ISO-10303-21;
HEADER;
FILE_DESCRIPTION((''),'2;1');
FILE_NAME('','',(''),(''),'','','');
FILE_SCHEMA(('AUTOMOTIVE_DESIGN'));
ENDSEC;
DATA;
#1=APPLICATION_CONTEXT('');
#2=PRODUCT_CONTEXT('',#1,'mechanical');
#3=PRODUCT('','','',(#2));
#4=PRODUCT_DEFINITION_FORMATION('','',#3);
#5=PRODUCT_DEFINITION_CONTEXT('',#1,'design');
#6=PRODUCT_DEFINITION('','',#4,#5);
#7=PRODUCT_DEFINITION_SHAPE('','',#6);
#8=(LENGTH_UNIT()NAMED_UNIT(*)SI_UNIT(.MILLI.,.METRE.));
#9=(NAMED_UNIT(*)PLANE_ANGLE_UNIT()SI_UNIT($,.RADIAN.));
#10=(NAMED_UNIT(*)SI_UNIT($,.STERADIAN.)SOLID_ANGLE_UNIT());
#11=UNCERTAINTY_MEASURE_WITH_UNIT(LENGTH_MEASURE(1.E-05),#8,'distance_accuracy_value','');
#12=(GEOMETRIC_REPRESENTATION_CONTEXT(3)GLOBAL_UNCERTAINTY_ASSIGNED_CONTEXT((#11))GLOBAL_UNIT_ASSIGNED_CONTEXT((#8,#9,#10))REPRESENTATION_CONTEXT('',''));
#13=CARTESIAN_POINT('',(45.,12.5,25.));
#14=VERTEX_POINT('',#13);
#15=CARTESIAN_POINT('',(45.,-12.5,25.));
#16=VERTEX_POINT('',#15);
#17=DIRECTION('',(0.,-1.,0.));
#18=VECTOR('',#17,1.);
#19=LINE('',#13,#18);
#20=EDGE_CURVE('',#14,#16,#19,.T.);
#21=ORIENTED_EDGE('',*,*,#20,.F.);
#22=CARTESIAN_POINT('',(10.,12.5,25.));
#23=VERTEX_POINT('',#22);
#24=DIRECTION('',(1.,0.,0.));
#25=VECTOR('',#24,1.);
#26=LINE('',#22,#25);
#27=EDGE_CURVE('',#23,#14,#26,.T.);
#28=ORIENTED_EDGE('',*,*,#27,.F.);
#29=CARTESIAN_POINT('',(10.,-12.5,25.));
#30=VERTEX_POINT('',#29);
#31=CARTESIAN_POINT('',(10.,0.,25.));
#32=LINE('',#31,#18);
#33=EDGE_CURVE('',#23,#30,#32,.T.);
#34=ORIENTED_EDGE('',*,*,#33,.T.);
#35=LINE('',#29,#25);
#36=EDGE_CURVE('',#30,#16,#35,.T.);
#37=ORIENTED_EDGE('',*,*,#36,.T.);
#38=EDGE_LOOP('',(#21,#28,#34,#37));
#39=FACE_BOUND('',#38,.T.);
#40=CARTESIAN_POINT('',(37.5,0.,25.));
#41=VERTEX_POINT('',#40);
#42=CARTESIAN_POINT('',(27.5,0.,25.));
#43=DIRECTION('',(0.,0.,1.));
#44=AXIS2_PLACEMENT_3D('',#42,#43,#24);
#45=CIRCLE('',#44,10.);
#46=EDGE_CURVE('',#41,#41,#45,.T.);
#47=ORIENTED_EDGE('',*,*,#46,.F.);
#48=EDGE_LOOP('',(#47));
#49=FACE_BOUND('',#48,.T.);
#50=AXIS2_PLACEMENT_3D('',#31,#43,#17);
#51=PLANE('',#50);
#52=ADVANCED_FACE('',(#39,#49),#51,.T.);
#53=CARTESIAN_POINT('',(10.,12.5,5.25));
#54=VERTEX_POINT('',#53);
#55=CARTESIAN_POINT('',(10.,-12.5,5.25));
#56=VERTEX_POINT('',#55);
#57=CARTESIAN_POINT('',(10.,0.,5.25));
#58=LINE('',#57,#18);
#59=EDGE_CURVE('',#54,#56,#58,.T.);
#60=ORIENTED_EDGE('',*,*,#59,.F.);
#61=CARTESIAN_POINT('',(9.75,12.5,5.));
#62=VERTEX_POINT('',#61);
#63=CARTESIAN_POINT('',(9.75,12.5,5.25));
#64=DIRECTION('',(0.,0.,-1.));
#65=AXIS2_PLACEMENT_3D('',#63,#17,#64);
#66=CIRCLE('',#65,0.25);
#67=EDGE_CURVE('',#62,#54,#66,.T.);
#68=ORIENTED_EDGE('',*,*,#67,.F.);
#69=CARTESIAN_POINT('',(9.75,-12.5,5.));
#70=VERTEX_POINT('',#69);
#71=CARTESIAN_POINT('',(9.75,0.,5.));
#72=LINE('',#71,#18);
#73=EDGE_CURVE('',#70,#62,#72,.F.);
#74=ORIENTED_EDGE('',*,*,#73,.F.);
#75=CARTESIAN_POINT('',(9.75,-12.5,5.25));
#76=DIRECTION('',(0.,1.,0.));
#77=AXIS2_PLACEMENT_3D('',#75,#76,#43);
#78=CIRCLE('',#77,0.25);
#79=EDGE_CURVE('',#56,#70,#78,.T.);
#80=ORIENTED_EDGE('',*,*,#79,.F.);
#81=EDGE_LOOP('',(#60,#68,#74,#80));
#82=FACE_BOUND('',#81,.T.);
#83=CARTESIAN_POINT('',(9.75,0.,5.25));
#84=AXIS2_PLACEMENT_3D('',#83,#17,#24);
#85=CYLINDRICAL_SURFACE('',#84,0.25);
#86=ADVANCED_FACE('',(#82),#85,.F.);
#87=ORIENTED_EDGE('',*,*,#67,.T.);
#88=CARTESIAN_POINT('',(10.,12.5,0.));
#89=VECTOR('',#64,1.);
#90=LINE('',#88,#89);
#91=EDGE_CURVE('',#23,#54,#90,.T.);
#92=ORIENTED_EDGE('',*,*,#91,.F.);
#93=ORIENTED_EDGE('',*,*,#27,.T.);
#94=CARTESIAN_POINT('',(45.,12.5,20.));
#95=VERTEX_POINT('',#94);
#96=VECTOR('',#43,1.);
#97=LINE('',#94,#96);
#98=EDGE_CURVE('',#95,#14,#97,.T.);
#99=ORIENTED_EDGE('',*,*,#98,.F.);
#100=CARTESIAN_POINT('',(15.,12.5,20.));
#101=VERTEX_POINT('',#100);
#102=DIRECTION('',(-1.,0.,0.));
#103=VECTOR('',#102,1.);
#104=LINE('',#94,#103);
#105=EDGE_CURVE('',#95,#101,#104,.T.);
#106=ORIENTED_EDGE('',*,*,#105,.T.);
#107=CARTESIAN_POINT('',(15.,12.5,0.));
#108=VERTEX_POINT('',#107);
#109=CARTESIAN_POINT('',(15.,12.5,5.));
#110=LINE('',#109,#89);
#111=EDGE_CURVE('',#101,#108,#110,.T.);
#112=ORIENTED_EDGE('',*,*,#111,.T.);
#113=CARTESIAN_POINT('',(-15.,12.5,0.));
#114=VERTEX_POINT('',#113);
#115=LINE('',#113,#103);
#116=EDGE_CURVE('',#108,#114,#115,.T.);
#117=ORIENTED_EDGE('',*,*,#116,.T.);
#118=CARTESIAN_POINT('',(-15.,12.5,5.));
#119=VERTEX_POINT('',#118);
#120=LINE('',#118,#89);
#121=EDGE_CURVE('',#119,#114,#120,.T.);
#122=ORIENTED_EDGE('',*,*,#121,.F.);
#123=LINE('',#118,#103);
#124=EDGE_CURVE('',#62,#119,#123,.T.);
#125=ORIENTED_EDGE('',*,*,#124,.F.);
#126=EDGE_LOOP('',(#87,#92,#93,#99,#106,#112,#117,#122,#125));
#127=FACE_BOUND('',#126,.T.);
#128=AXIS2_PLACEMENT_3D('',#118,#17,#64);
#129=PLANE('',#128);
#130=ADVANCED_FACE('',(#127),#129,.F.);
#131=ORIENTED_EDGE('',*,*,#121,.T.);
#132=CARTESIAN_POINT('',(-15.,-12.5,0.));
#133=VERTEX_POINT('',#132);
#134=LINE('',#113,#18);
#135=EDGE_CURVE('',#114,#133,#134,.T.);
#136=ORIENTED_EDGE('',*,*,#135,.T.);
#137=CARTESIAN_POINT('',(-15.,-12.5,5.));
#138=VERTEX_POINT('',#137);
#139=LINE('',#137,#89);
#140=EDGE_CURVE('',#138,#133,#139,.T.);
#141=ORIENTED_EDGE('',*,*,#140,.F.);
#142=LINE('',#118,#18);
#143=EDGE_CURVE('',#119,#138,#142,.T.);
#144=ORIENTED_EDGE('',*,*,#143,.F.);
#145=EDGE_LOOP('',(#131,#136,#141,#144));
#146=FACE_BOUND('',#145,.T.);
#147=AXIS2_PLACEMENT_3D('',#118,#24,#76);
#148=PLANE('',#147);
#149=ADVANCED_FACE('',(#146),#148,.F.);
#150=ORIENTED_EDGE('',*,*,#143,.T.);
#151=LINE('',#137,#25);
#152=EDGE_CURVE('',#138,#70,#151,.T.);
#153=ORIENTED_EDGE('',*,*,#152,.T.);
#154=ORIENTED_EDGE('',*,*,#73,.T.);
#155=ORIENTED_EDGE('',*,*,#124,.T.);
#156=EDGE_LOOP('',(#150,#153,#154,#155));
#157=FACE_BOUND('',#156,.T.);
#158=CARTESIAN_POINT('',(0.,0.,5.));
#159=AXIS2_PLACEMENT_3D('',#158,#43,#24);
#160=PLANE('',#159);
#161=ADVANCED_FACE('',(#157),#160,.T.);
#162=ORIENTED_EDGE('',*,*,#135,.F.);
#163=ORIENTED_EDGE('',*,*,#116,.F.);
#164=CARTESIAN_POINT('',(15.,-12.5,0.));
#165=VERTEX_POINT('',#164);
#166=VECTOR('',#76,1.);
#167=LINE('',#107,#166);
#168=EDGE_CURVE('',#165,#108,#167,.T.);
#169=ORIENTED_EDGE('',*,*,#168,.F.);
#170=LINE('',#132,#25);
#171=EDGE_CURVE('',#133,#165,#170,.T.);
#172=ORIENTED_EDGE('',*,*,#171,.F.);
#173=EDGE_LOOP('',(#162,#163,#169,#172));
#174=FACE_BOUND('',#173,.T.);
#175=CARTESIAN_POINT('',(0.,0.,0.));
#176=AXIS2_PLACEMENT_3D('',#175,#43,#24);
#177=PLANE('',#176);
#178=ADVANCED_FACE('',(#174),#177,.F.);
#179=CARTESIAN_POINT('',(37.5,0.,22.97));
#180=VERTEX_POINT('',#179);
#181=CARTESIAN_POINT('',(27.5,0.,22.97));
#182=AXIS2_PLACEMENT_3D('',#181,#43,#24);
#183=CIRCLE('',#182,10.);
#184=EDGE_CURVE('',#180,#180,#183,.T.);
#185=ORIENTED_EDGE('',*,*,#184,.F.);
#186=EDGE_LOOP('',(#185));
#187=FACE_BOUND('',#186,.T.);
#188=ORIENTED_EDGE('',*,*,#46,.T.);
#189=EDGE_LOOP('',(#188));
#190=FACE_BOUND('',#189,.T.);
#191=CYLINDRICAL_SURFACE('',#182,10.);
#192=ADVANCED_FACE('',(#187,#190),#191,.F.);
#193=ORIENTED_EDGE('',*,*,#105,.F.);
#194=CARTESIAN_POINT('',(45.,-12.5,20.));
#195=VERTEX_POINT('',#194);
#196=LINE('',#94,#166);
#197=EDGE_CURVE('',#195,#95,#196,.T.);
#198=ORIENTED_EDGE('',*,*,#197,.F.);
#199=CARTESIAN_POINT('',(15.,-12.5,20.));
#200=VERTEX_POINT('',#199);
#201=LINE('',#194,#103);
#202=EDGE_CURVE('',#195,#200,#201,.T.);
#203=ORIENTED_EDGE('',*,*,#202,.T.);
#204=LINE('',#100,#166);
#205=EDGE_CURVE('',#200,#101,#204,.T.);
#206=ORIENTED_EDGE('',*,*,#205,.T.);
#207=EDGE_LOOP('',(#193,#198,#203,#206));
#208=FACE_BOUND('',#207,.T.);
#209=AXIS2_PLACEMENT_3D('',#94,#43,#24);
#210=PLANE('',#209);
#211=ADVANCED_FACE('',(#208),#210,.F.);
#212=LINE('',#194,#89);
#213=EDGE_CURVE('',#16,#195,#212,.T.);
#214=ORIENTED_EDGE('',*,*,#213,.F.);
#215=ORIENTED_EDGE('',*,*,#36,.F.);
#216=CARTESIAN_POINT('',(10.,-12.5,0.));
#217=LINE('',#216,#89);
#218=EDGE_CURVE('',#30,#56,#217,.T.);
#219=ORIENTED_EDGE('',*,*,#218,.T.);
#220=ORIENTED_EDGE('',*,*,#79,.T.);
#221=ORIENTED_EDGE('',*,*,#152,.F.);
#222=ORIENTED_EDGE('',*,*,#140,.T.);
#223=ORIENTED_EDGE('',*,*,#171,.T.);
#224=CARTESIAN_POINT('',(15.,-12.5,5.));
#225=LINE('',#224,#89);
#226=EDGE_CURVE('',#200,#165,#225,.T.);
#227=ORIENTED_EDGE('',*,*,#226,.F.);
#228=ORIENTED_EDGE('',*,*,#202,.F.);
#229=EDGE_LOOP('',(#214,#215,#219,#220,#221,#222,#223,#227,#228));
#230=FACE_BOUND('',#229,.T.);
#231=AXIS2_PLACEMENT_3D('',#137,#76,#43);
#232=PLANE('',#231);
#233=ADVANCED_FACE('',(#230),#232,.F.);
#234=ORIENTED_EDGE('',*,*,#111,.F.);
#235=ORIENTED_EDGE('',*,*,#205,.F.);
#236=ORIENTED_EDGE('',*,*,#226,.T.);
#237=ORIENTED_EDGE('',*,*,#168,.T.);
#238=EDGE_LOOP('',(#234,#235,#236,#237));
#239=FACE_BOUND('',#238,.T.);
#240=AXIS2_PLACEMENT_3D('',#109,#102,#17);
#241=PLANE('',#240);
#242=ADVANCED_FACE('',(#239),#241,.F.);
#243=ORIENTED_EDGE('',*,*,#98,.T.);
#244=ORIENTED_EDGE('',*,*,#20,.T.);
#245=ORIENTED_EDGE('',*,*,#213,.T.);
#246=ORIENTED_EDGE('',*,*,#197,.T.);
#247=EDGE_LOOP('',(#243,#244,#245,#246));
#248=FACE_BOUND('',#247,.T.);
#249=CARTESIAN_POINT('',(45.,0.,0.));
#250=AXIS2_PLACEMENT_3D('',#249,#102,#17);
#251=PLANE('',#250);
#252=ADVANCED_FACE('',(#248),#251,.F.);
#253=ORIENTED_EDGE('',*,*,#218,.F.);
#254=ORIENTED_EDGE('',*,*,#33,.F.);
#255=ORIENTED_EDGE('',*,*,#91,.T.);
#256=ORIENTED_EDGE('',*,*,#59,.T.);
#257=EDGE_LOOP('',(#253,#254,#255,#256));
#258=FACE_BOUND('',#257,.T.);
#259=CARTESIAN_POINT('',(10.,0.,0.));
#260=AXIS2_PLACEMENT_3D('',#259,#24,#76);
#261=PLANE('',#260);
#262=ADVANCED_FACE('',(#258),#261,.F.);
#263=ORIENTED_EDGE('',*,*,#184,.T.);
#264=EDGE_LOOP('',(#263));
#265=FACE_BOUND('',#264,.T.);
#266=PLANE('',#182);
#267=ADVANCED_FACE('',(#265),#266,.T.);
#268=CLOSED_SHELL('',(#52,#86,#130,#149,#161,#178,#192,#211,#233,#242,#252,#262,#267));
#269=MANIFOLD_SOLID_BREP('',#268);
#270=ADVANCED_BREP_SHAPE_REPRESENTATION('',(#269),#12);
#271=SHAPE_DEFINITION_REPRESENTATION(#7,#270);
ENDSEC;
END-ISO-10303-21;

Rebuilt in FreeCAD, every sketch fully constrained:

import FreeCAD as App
import Part
import Sketcher
from FreeCAD import Vector
Q = App.Units.Quantity


def edges_at(feature, points):
    """Names of the edges that pass closest to the given points."""
    edges = feature.Shape.Edges
    near = lambda p: min(range(len(edges)), key=lambda i: edges[i].distToShape(Part.Vertex(*p))[0])
    return sorted({f"Edge{near(p) + 1}" for p in points})

doc = App.newDocument("Part")
body = doc.addObject("PartDesign::Body", "Body")

# Sketch on XY plane
sketch1 = body.newObject("Sketcher::SketchObject", "Sketch")
sketch1.AttachmentSupport = (doc.getObject("XY_Plane"), [""])
sketch1.MapMode = "FlatFace"
sketch1.addGeometry(Part.LineSegment(Vector(-15, 12, 0), Vector(-15, -12, 0)), False)
sketch1.addGeometry(Part.LineSegment(Vector(-15, -12, 0), Vector(15, -12, 0)), False)
sketch1.addGeometry(Part.LineSegment(Vector(15, -12, 0), Vector(15, 12, 0)), False)
sketch1.addGeometry(Part.LineSegment(Vector(15, 12, 0), Vector(-15, 12, 0)), False)
sketch1.addConstraint(Sketcher.Constraint("Coincident", 0, 2, 1, 1))
sketch1.addConstraint(Sketcher.Constraint("Coincident", 1, 2, 2, 1))
sketch1.addConstraint(Sketcher.Constraint("Coincident", 2, 2, 3, 1))
sketch1.addConstraint(Sketcher.Constraint("Coincident", 3, 2, 0, 1))
sketch1.addConstraint(Sketcher.Constraint("Vertical", 0))
sketch1.addConstraint(Sketcher.Constraint("Horizontal", 1))
sketch1.addConstraint(Sketcher.Constraint("Vertical", 2))
sketch1.addConstraint(Sketcher.Constraint("Horizontal", 3))
sketch1.addConstraint(Sketcher.Constraint("Symmetric", 0, 2, 2, 2, -1, 1))
sketch1.addConstraint(Sketcher.Constraint("DistanceX", 1, 1, 1, 2, Q("30 mm")))
sketch1.addConstraint(Sketcher.Constraint("DistanceY", 0, 2, 0, 1, Q("25 mm")))
pad1 = body.newObject("PartDesign::Pad", "Pad")
pad1.Profile = sketch1
pad1.Length = 5

# Sketch on YZ plane
sketch2 = body.newObject("Sketcher::SketchObject", "Sketch001")
sketch2.AttachmentSupport = (doc.getObject("YZ_Plane"), [""])
sketch2.MapMode = "FlatFace"
sketch2.AttachmentOffset = App.Placement(Vector(0, 0, 15), App.Rotation())
sketch2.addGeometry(Part.LineSegment(Vector(12, 25, 0), Vector(-12, 25, 0)), False)
sketch2.addGeometry(Part.LineSegment(Vector(-12, 25, 0), Vector(-12, 5, 0)), False)
sketch2.addGeometry(Part.LineSegment(Vector(-12, 5, 0), Vector(12, 5, 0)), False)
sketch2.addGeometry(Part.LineSegment(Vector(12, 5, 0), Vector(12, 25, 0)), False)
sketch2.addConstraint(Sketcher.Constraint("Coincident", 0, 2, 1, 1))
sketch2.addConstraint(Sketcher.Constraint("Coincident", 1, 2, 2, 1))
sketch2.addConstraint(Sketcher.Constraint("Coincident", 2, 2, 3, 1))
sketch2.addConstraint(Sketcher.Constraint("Coincident", 3, 2, 0, 1))
sketch2.addConstraint(Sketcher.Constraint("Horizontal", 0))
sketch2.addConstraint(Sketcher.Constraint("Vertical", 1))
sketch2.addConstraint(Sketcher.Constraint("Horizontal", 2))
sketch2.addConstraint(Sketcher.Constraint("Vertical", 3))
sketch2.addConstraint(Sketcher.Constraint("DistanceX", 0, 2, 0, 1, Q("25 mm")))
sketch2.addConstraint(Sketcher.Constraint("DistanceY", 1, 2, 1, 1, Q("20 mm")))
sketch2.addConstraint(Sketcher.Constraint("DistanceY", -1, 1, 0, 2, Q("25 mm")))
sketch2.addConstraint(Sketcher.Constraint("DistanceX", 0, 2, -1, 1, Q("12.5 mm")))
pad2 = body.newObject("PartDesign::Pad", "Pad001")
pad2.Profile = sketch2
pad2.Length = 5
pad2.Reversed = True

# Sketch on YZ plane
sketch3 = body.newObject("Sketcher::SketchObject", "Sketch002")
sketch3.AttachmentSupport = (doc.getObject("YZ_Plane"), [""])
sketch3.MapMode = "FlatFace"
sketch3.AttachmentOffset = App.Placement(Vector(0, 0, 15), App.Rotation())
sketch3.addGeometry(Part.LineSegment(Vector(12, 25, 0), Vector(-12, 25, 0)), False)
sketch3.addGeometry(Part.LineSegment(Vector(-12, 25, 0), Vector(-12, 20, 0)), False)
sketch3.addGeometry(Part.LineSegment(Vector(-12, 20, 0), Vector(12, 20, 0)), False)
sketch3.addGeometry(Part.LineSegment(Vector(12, 20, 0), Vector(12, 25, 0)), False)
sketch3.addConstraint(Sketcher.Constraint("Coincident", 0, 2, 1, 1))
sketch3.addConstraint(Sketcher.Constraint("Coincident", 1, 2, 2, 1))
sketch3.addConstraint(Sketcher.Constraint("Coincident", 2, 2, 3, 1))
sketch3.addConstraint(Sketcher.Constraint("Coincident", 3, 2, 0, 1))
sketch3.addConstraint(Sketcher.Constraint("Horizontal", 0))
sketch3.addConstraint(Sketcher.Constraint("Vertical", 1))
sketch3.addConstraint(Sketcher.Constraint("Horizontal", 2))
sketch3.addConstraint(Sketcher.Constraint("Vertical", 3))
sketch3.addConstraint(Sketcher.Constraint("DistanceX", 0, 2, 0, 1, Q("25 mm")))
sketch3.addConstraint(Sketcher.Constraint("DistanceY", 1, 2, 1, 1, Q("5 mm")))
sketch3.addConstraint(Sketcher.Constraint("DistanceY", -1, 1, 0, 2, Q("25 mm")))
sketch3.addConstraint(Sketcher.Constraint("DistanceX", 0, 2, -1, 1, Q("12.5 mm")))
pad3 = body.newObject("PartDesign::Pad", "Pad002")
pad3.Profile = sketch3
pad3.Length = 30
doc.recompute()

fillet = body.newObject("PartDesign::Fillet", "Fillet")
fillet.Base = (pad3, edges_at(pad3, [(10, 0, 5)]))
fillet.Radius = 0.25

# Sketch on XY plane
sketch4 = body.newObject("Sketcher::SketchObject", "Sketch003")
sketch4.AttachmentSupport = (doc.getObject("XY_Plane"), [""])
sketch4.MapMode = "FlatFace"
sketch4.AttachmentOffset = App.Placement(Vector(0, 0, 25), App.Rotation())
sketch4.addGeometry(Part.Circle(Vector(28, 0, 0), Vector(0, 0, 1), 10), False)
sketch4.addConstraint(Sketcher.Constraint("PointOnObject", 0, 3, -1))
sketch4.addConstraint(Sketcher.Constraint("Diameter", 0, Q("20 mm")))
sketch4.addConstraint(Sketcher.Constraint("DistanceX", -1, 1, 0, 3, Q("27.5 mm")))
pocket1 = body.newObject("PartDesign::Pocket", "Pocket")
pocket1.Profile = sketch4
pocket1.Length = 2.03

doc.recompute()
